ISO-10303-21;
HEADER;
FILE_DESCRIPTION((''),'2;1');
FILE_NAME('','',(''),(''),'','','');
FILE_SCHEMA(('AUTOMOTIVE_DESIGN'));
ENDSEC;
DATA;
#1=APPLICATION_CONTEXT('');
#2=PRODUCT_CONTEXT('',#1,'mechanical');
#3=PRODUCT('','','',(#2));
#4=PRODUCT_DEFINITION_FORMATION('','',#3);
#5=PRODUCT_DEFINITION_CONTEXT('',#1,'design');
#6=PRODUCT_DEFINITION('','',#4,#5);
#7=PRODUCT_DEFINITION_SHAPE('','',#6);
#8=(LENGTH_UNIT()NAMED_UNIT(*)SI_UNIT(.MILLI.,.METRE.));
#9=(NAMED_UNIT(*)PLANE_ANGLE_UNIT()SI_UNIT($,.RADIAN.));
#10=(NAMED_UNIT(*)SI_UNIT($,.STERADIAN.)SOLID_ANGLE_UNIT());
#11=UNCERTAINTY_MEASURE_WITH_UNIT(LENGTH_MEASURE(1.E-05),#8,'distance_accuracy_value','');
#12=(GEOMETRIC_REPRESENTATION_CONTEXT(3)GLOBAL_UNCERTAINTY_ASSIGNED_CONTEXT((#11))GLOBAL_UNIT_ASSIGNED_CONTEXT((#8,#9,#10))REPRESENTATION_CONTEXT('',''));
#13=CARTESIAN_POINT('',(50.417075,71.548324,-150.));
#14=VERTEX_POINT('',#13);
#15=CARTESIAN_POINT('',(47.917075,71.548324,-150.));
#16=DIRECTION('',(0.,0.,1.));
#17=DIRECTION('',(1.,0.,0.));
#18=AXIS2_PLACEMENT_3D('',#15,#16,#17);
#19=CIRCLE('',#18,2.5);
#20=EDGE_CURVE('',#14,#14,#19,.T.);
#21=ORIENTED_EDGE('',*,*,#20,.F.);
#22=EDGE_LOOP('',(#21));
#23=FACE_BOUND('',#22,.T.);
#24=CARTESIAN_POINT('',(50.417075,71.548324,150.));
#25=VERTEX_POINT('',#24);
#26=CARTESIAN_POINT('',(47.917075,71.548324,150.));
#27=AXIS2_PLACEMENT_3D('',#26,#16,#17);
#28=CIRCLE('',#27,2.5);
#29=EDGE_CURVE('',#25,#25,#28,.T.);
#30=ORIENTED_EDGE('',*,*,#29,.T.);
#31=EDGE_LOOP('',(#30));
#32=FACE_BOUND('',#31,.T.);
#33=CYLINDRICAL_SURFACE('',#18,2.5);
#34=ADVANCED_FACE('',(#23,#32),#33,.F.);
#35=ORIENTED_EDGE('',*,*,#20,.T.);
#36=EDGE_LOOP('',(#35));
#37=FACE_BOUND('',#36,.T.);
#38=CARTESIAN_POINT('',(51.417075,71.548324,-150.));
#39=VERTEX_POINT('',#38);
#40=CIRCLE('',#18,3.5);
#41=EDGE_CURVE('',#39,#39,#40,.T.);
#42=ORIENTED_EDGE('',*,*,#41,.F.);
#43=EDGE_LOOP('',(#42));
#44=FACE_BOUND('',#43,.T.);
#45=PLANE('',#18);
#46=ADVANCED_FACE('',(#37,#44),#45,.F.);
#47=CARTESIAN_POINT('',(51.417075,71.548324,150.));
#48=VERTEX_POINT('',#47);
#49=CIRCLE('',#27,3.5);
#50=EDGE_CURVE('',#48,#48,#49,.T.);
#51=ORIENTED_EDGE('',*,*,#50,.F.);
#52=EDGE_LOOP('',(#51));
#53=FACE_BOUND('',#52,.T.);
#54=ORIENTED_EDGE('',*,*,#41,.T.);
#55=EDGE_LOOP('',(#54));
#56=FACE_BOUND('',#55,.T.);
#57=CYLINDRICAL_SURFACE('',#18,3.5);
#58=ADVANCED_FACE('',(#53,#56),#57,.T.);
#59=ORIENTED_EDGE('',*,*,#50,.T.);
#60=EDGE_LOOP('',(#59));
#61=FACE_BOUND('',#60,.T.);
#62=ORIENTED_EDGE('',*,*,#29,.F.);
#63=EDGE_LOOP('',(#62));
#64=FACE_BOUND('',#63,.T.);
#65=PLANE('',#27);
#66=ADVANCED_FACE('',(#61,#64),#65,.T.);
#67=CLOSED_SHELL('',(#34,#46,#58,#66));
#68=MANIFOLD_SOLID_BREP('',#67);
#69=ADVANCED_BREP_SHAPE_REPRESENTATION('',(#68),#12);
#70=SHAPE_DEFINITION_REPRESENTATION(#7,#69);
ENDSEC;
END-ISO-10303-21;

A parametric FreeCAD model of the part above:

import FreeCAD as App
import Part
import Sketcher

doc = App.newDocument("Part")
body = doc.addObject("PartDesign::Body", "Body")

sketch1 = body.newObject("Sketcher::SketchObject", "Sketch")
sketch1.AttachmentSupport = (doc.getObject("XY_Plane"), [""])
sketch1.MapMode = "FlatFace"
sketch1.addGeometry([
    Part.Circle(App.Vector(47.9, 71.5, 0), App.Vector(0, 0, 1), 3.5),
    Part.Circle(App.Vector(47.9, 71.5, 0), App.Vector(0, 0, 1), 2.5),
], False)
sketch1.addConstraint([
    Sketcher.Constraint("Coincident", 1, 3, 0, 3),
    Sketcher.Constraint("Diameter", 0, 7.0),
    Sketcher.Constraint("Diameter", 1, 5.0),
    Sketcher.Constraint("DistanceX", -1, 1, 0, 3, 47.917075),
    Sketcher.Constraint("DistanceY", -1, 1, 0, 3, 71.548324),
])
pad1 = body.newObject("PartDesign::Pad", "Pad")
pad1.Profile = sketch1
pad1.Length = 300
pad1.Midplane = True

doc.recompute()
